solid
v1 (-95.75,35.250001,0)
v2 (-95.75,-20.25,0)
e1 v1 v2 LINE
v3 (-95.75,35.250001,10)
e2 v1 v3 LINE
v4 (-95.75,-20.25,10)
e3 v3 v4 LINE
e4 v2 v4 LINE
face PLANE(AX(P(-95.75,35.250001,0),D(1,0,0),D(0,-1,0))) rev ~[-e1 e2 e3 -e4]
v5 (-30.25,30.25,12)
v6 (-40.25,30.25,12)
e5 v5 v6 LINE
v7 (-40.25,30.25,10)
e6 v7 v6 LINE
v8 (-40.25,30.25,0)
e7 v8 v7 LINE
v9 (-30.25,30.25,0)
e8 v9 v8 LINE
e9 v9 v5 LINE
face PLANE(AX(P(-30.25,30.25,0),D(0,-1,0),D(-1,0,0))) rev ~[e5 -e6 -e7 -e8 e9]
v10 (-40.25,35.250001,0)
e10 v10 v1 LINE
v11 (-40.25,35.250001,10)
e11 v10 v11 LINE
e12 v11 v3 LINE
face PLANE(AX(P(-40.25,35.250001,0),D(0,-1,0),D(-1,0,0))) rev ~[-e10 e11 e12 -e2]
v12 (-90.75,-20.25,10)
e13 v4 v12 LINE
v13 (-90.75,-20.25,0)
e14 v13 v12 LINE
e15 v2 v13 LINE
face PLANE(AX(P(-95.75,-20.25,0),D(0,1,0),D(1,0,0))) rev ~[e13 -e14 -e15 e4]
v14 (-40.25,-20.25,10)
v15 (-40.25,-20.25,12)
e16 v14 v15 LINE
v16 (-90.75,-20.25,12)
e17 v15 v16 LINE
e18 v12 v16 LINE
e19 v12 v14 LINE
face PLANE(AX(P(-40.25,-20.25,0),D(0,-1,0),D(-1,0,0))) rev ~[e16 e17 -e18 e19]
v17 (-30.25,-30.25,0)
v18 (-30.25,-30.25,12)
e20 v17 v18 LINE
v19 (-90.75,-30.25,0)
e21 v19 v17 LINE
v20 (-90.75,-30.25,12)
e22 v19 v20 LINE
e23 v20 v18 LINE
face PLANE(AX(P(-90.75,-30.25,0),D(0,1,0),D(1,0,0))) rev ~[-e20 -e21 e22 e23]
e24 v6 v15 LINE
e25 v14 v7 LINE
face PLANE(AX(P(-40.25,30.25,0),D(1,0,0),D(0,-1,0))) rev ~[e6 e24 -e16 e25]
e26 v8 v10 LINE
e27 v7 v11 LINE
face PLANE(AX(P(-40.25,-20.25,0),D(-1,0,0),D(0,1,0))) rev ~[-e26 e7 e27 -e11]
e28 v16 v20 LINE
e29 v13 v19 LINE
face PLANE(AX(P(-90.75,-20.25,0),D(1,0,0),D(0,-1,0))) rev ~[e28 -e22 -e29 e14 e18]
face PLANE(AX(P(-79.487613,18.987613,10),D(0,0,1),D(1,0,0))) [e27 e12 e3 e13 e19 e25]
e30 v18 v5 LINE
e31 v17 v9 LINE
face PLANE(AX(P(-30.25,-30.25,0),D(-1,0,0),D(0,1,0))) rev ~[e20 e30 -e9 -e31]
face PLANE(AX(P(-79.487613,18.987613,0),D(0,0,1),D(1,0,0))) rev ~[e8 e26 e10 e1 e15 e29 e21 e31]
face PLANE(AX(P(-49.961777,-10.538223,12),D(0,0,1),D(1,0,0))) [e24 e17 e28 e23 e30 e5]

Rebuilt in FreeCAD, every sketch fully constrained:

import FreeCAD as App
import Part
import Sketcher

doc = App.newDocument("Part")
body = doc.addObject("PartDesign::Body", "Body")

# Sketch on XY plane
sketch1 = body.newObject("Sketcher::SketchObject", "Sketch")
sketch1.AttachmentSupport = (doc.getObject("XY_Plane"), [""])
sketch1.MapMode = "FlatFace"
sketch1.addGeometry([
    Part.LineSegment(App.Vector(-90.75, -20.25, 0), App.Vector(-90.75, -30.25, 0)),  # 0
    Part.LineSegment(App.Vector(-90.75, -30.25, 0), App.Vector(-30.25, -30.25, 0)),  # 1
    Part.LineSegment(App.Vector(-30.25, -30.25, 0), App.Vector(-30.25, 30.25, 0)),  # 2
    Part.LineSegment(App.Vector(-30.25, 30.25, 0), App.Vector(-40.25, 30.25, 0)),  # 3
    Part.LineSegment(App.Vector(-40.25, 30.25, 0), App.Vector(-40.25, -20.25, 0)),  # 4
    Part.LineSegment(App.Vector(-40.25, -20.25, 0), App.Vector(-90.75, -20.25, 0)),  # 5
], False)
sketch1.addConstraint([
    Sketcher.Constraint("Coincident", 0, 2, 1, 1),
    Sketcher.Constraint("Coincident", 1, 2, 2, 1),
    Sketcher.Constraint("Coincident", 2, 2, 3, 1),
    Sketcher.Constraint("Coincident", 3, 2, 4, 1),
    Sketcher.Constraint("Coincident", 4, 2, 5, 1),
    Sketcher.Constraint("Coincident", 5, 2, 0, 1),
    Sketcher.Constraint("Vertical", 0),
    Sketcher.Constraint("Horizontal", 1),
    Sketcher.Constraint("Vertical", 2),
    Sketcher.Constraint("Horizontal", 3),
    Sketcher.Constraint("Vertical", 4),
    Sketcher.Constraint("Horizontal", 5),
    Sketcher.Constraint("Equal", 3, 0),
    Sketcher.Constraint("Equal", 1, 2),
    Sketcher.Constraint("DistanceX", 3, 2, 3, 1, 10.0),
    Sketcher.Constraint("DistanceX", 1, 1, 1, 2, 60.5),
    Sketcher.Constraint("DistanceX", 0, 2, -1, 1, 90.75),
    Sketcher.Constraint("DistanceY", 0, 2, -1, 1, 30.25),
])
pad1 = body.newObject("PartDesign::Pad", "Pad")
pad1.Profile = sketch1
pad1.Length = 12

# Sketch on XY plane
sketch2 = body.newObject("Sketcher::SketchObject", "Sketch001")
sketch2.AttachmentSupport = (doc.getObject("XY_Plane"), [""])
sketch2.MapMode = "FlatFace"
sketch2.addGeometry([
    Part.LineSegment(App.Vector(-40.25, 35.250001, 0), App.Vector(-95.75, 35.250001, 0)),
    Part.LineSegment(App.Vector(-95.75, 35.250001, 0), App.Vector(-95.75, -20.25, 0)),
    Part.LineSegment(App.Vector(-95.75, -20.25, 0), App.Vector(-40.25, -20.25, 0)),
    Part.LineSegment(App.Vector(-40.25, -20.25, 0), App.Vector(-40.25, 35.250001, 0)),
], False)
sketch2.addConstraint([
    Sketcher.Constraint("Coincident", 0, 2, 1, 1),
    Sketcher.Constraint("Coincident", 1, 2, 2, 1),
    Sketcher.Constraint("Coincident", 2, 2, 3, 1),
    Sketcher.Constraint("Coincident", 3, 2, 0, 1),
    Sketcher.Constraint("Horizontal", 0),
    Sketcher.Constraint("Vertical", 1),
    Sketcher.Constraint("Horizontal", 2),
    Sketcher.Constraint("Vertical", 3),
    Sketcher.Constraint("Equal", 2, 1),
    Sketcher.Constraint("DistanceX", 0, 2, 0, 1, 55.5),
    Sketcher.Constraint("DistanceX", 0, 2, -1, 1, 95.75),
    Sketcher.Constraint("DistanceY", -1, 1, 0, 2, 35.250001),
])
pad2 = body.newObject("PartDesign::Pad", "Pad001")
pad2.Profile = sketch2
pad2.Length = 10

doc.recompute()
